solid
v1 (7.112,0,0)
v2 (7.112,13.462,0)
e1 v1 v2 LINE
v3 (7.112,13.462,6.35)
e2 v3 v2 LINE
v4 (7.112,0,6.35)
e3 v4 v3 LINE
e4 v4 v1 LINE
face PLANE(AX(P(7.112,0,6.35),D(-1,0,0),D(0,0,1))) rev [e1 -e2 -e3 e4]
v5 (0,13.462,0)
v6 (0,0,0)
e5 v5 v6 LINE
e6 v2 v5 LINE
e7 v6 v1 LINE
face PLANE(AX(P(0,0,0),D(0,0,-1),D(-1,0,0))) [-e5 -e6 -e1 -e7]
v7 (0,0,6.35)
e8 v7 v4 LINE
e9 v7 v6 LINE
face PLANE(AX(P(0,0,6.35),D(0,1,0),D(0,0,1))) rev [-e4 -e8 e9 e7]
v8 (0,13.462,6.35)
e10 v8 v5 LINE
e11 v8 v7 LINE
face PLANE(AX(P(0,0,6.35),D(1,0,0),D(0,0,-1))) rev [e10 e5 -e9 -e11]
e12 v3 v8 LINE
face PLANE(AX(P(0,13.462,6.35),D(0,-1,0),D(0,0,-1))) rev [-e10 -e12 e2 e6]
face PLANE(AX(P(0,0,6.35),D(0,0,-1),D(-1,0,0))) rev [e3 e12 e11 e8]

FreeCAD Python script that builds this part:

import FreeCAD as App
import Part
import Sketcher
Q = App.Units.Quantity

doc = App.newDocument("Part")
body = doc.addObject("PartDesign::Body", "Body")

# Sketch on XY plane
sketch1 = doc.addObject("Sketcher::SketchObject", "Sketch")
body.addObject(sketch1)
sketch1.AttachmentSupport = (doc.XY_Plane, [""])
sketch1.MapMode = "FlatFace"
sketch1.addGeometry(Part.LineSegment(App.Vector(0, 13, 0), App.Vector(0, 0, 0)), False)
sketch1.addGeometry(Part.LineSegment(App.Vector(0, 0, 0), App.Vector(7, 0, 0)), False)
sketch1.addGeometry(Part.LineSegment(App.Vector(7, 0, 0), App.Vector(7, 13, 0)), False)
sketch1.addGeometry(Part.LineSegment(App.Vector(7, 13, 0), App.Vector(0, 13, 0)), False)
sketch1.addConstraint(Sketcher.Constraint("Coincident", 0, 2, 1, 1))
sketch1.addConstraint(Sketcher.Constraint("Coincident", 1, 2, 2, 1))
sketch1.addConstraint(Sketcher.Constraint("Coincident", 2, 2, 3, 1))
sketch1.addConstraint(Sketcher.Constraint("Coincident", 3, 2, 0, 1))
sketch1.addConstraint(Sketcher.Constraint("Vertical", 0))
sketch1.addConstraint(Sketcher.Constraint("Horizontal", 1))
sketch1.addConstraint(Sketcher.Constraint("Vertical", 2))
sketch1.addConstraint(Sketcher.Constraint("Horizontal", 3))
sketch1.addConstraint(Sketcher.Constraint("Coincident", 0, 2, -1, 1))
sketch1.addConstraint(Sketcher.Constraint("DistanceX", 1, 1, 1, 2, Q("0.28 in")))
sketch1.addConstraint(Sketcher.Constraint("DistanceY", 0, 2, 0, 1, Q("0.53 in")))
pad1 = doc.addObject("PartDesign::Pad", "Pad")
body.addObject(pad1)
pad1.Profile = sketch1
pad1.Length = Q("0.25 in")

doc.recompute()
